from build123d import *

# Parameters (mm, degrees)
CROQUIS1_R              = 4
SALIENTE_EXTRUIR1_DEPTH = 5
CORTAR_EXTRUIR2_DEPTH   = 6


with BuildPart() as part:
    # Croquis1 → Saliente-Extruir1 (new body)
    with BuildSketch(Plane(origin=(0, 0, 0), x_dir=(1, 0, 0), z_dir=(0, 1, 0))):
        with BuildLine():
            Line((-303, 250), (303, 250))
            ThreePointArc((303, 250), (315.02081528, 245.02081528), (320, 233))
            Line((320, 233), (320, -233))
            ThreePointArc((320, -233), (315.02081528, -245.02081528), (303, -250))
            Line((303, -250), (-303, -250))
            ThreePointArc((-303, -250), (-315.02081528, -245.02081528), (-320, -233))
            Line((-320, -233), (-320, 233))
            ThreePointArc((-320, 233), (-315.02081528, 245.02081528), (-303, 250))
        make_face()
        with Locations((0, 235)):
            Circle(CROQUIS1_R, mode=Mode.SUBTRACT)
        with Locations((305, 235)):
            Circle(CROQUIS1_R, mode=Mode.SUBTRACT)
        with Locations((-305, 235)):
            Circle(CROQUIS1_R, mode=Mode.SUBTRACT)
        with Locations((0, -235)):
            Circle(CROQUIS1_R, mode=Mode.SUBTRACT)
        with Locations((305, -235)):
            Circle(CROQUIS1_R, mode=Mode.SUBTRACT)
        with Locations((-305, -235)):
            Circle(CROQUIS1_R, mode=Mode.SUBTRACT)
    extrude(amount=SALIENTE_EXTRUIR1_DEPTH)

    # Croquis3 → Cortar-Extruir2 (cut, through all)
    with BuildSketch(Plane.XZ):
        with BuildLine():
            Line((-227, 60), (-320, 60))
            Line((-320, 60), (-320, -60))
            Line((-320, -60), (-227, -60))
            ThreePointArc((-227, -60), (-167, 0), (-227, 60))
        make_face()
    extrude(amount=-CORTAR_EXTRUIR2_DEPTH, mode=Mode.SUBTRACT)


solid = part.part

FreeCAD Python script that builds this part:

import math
import FreeCAD as App
import Part
import Sketcher

V = App.Vector
Q = App.Units.Quantity

doc = App.newDocument("Part")
params = doc.addObject("Spreadsheet::Sheet", "Params")
for row, (alias, value) in enumerate([
    ("sketch1_diameter", "8 mm"),
    ("sketch1_radius", "17 mm"),
    ("sketch1_width", "606 mm"),
    ("sketch1_height", "466 mm"),
    ("pad1_length", "5 mm"),
    ("sketch2_radius", "60 mm"),
    ("sketch2_width", "93 mm"),
], start=1):
    params.set(f"A{row}", alias)
    params.set(f"B{row}", "=" + value)
    params.setAlias(f"B{row}", alias)

body = doc.addObject("PartDesign::Body", "Body")

sketch1 = doc.addObject("Sketcher::SketchObject", "Sketch")
body.addObject(sketch1)
sketch1.AttachmentSupport = (doc.XZ_Plane, [""])
sketch1.MapMode = "FlatFace"
sketch1.addGeometry([
    Part.LineSegment(V(303, -250, 0), V(-303, -250, 0)),
    Part.ArcOfCircle(Part.Circle(V(-303, -233, 0), V(0, 0, 1), 17), math.radians(-180), math.radians(-90)),
    Part.LineSegment(V(-320, -233, 0), V(-320, 233, 0)),
    Part.ArcOfCircle(Part.Circle(V(-303, 233, 0), V(0, 0, 1), 17), math.radians(90), math.radians(180)),
    Part.LineSegment(V(-303, 250, 0), V(303, 250, 0)),
    Part.ArcOfCircle(Part.Circle(V(303, 233, 0), V(0, 0, 1), 17), math.radians(0), math.radians(90)),
    Part.LineSegment(V(320, 233, 0), V(320, -233, 0)),
    Part.ArcOfCircle(Part.Circle(V(303, -233, 0), V(0, 0, 1), 17), math.radians(-90), math.radians(0)),
    Part.Circle(V(305, 235, 0), V(0, 0, 1), 4),
    Part.Circle(V(0, 235, 0), V(0, 0, 1), 4),
    Part.Circle(V(-305, 235, 0), V(0, 0, 1), 4),
    Part.Circle(V(305, -235, 0), V(0, 0, 1), 4),
    Part.Circle(V(0, -235, 0), V(0, 0, 1), 4),
    Part.Circle(V(-305, -235, 0), V(0, 0, 1), 4),
], False)
sketch1.addConstraint([
    Sketcher.Constraint("Tangent", 0, 2, 1, 2),
    Sketcher.Constraint("Tangent", 1, 1, 2, 1),
    Sketcher.Constraint("Tangent", 2, 2, 3, 2),
    Sketcher.Constraint("Tangent", 3, 1, 4, 1),
    Sketcher.Constraint("Tangent", 4, 2, 5, 2),
    Sketcher.Constraint("Tangent", 5, 1, 6, 1),
    Sketcher.Constraint("Tangent", 6, 2, 7, 2),
    Sketcher.Constraint("Tangent", 7, 1, 0, 1),
    Sketcher.Constraint("Horizontal", 0),
    Sketcher.Constraint("Vertical", 2),
    Sketcher.Constraint("Horizontal", 4),
    Sketcher.Constraint("Vertical", 6),
    Sketcher.Constraint("Equal", 1, 3),
    Sketcher.Constraint("Equal", 3, 5),
    Sketcher.Constraint("Equal", 5, 7),
    Sketcher.Constraint("Equal", 8, 9),
    Sketcher.Constraint("Equal", 9, 10),
    Sketcher.Constraint("Equal", 10, 11),
    Sketcher.Constraint("Equal", 11, 12),
    Sketcher.Constraint("Equal", 12, 13),
    Sketcher.Constraint("Symmetric", 1, 3, 5, 3, -1, 1),
    Sketcher.Constraint("Symmetric", 10, 3, 11, 3, -1, 1),
    Sketcher.Constraint("Symmetric", 9, 3, 12, 3, -1, 1),
    Sketcher.Constraint("Symmetric", 8, 3, 13, 3, -1, 1),
    Sketcher.Constraint("Symmetric", 8, 3, 10, 3, -2),
    Sketcher.Constraint("PointOnObject", 9, 3, -2),
    Sketcher.Constraint("Horizontal", 8, 3, 9, 3),
    Sketcher.Constraint("Diameter", 8, Q("8 mm")),
    Sketcher.Constraint("Radius", 1, Q("17 mm")),
    Sketcher.Constraint("DistanceX", 0, 2, 0, 1, Q("606 mm")),
    Sketcher.Constraint("DistanceY", 2, 1, 2, 2, Q("466 mm")),
    Sketcher.Constraint("DistanceX", -1, 1, 8, 3, Q("305 mm")),
    Sketcher.Constraint("DistanceY", -1, 1, 8, 3, Q("235 mm")),
])
sketch1.setExpression("Constraints[27]", "Params.sketch1_diameter")
sketch1.setExpression("Constraints[28]", "Params.sketch1_radius")
sketch1.setExpression("Constraints[29]", "Params.sketch1_width")
sketch1.setExpression("Constraints[30]", "Params.sketch1_height")
pad1 = doc.addObject("PartDesign::Pad", "Pad")
body.addObject(pad1)
pad1.Profile = sketch1
pad1.setExpression("Length", "Params.pad1_length")
pad1.Reversed = True

sketch2 = doc.addObject("Sketcher::SketchObject", "Sketch001")
body.addObject(sketch2)
sketch2.AttachmentSupport = (doc.XZ_Plane, [""])
sketch2.MapMode = "FlatFace"
sketch2.addGeometry([
    Part.LineSegment(V(-227, 60, 0), V(-320, 60, 0)),
    Part.LineSegment(V(-320, 60, 0), V(-320, -60, 0)),
    Part.LineSegment(V(-320, -60, 0), V(-227, -60, 0)),
    Part.ArcOfCircle(Part.Circle(V(-227, 0, 0), V(0, 0, 1), 60), math.radians(-90), math.radians(90)),
], False)
sketch2.addConstraint([
    Sketcher.Constraint("Coincident", 0, 2, 1, 1),
    Sketcher.Constraint("Coincident", 1, 2, 2, 1),
    Sketcher.Constraint("Tangent", 2, 2, 3, 1),
    Sketcher.Constraint("Tangent", 3, 2, 0, 1),
    Sketcher.Constraint("Horizontal", 0),
    Sketcher.Constraint("Vertical", 1),
    Sketcher.Constraint("Horizontal", 2),
    Sketcher.Constraint("PointOnObject", 3, 3, -1),
    Sketcher.Constraint("Radius", 3, Q("60 mm")),
    Sketcher.Constraint("DistanceX", 0, 2, 0, 1, Q("93 mm")),
    Sketcher.Constraint("DistanceX", 3, 3, -1, 1, Q("227 mm")),
])
sketch2.setExpression("Constraints[8]", "Params.sketch2_radius")
sketch2.setExpression("Constraints[9]", "Params.sketch2_width")
pocket1 = doc.addObject("PartDesign::Pocket", "Pocket")
body.addObject(pocket1)
pocket1.Profile = sketch2
pocket1.Type = "ThroughAll"

doc.recompute()
